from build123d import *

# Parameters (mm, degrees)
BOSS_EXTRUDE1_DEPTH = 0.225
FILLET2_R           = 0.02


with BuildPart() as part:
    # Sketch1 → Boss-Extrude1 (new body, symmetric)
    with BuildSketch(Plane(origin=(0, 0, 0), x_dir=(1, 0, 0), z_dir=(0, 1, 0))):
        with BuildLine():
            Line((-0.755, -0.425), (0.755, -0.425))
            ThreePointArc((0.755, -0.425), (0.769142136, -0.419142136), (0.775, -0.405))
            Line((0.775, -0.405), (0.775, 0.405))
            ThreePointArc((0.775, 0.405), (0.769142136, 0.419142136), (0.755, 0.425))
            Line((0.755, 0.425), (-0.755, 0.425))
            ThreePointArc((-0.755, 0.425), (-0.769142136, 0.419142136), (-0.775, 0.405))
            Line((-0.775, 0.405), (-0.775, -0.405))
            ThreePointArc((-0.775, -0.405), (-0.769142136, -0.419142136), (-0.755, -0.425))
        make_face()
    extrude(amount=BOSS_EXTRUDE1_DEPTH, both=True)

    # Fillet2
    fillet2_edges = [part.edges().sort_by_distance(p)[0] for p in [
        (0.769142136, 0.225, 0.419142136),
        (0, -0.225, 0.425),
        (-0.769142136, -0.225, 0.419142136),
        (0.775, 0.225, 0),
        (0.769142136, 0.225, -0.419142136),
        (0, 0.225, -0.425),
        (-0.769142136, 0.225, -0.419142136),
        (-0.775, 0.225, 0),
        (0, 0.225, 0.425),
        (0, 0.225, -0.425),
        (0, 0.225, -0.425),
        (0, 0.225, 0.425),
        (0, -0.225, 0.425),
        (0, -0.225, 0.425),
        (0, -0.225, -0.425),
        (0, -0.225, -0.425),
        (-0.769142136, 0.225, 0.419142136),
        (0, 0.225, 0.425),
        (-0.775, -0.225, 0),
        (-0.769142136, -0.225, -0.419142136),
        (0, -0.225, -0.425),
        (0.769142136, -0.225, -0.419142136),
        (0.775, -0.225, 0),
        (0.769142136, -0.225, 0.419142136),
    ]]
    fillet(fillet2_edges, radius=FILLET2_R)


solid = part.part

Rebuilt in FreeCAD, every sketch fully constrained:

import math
import FreeCAD as App
import Part
import Sketcher

doc = App.newDocument("Part")
body = doc.addObject("PartDesign::Body", "Body")

# Sketch on XZ plane
sketch1 = body.newObject("Sketcher::SketchObject", "Sketch")
sketch1.AttachmentSupport = (doc.getObject("XZ_Plane"), [""])
sketch1.MapMode = "FlatFace"
sketch1.addGeometry([
    Part.LineSegment(App.Vector(-0.755, 0.425, 0), App.Vector(0.755, 0.425, 0)),  # 0
    Part.ArcOfCircle(Part.Circle(App.Vector(0.755, 0.405, 0), App.Vector(0, 0, 1), 0.02), math.radians(0), math.radians(90)),  # 1
    Part.LineSegment(App.Vector(0.775, 0.405, 0), App.Vector(0.775, -0.405, 0)),  # 2
    Part.ArcOfCircle(Part.Circle(App.Vector(0.755, -0.405, 0), App.Vector(0, 0, 1), 0.02), math.radians(-90), math.radians(0)),  # 3
    Part.LineSegment(App.Vector(0.755, -0.425, 0), App.Vector(-0.755, -0.425, 0)),  # 4
    Part.ArcOfCircle(Part.Circle(App.Vector(-0.755, -0.405, 0), App.Vector(0, 0, 1), 0.02), math.radians(180), math.radians(270)),  # 5
    Part.LineSegment(App.Vector(-0.775, -0.405, 0), App.Vector(-0.775, 0.405, 0)),  # 6
    Part.ArcOfCircle(Part.Circle(App.Vector(-0.755, 0.405, 0), App.Vector(0, 0, 1), 0.02), math.radians(90), math.radians(180)),  # 7
], False)
sketch1.addConstraint([
    Sketcher.Constraint("Tangent", 0, 2, 1, 2),
    Sketcher.Constraint("Tangent", 1, 1, 2, 1),
    Sketcher.Constraint("Tangent", 2, 2, 3, 2),
    Sketcher.Constraint("Tangent", 3, 1, 4, 1),
    Sketcher.Constraint("Tangent", 4, 2, 5, 2),
    Sketcher.Constraint("Tangent", 5, 1, 6, 1),
    Sketcher.Constraint("Tangent", 6, 2, 7, 2),
    Sketcher.Constraint("Tangent", 7, 1, 0, 1),
    Sketcher.Constraint("Horizontal", 0),
    Sketcher.Constraint("Vertical", 2),
    Sketcher.Constraint("Horizontal", 4),
    Sketcher.Constraint("Vertical", 6),
    Sketcher.Constraint("Equal", 1, 3),
    Sketcher.Constraint("Equal", 3, 5),
    Sketcher.Constraint("Equal", 5, 7),
    Sketcher.Constraint("Symmetric", 1, 3, 5, 3, -1, 1),
    Sketcher.Constraint("Radius", 1, 0.02),
    Sketcher.Constraint("DistanceX", 0, 1, 0, 2, 1.51),
    Sketcher.Constraint("DistanceY", 2, 2, 2, 1, 0.81),
])
pad1 = body.newObject("PartDesign::Pad", "Pad")
pad1.Profile = sketch1
pad1.Length = 0.45
pad1.Midplane = True
doc.recompute()

fillet = body.newObject("PartDesign::Fillet", "Fillet")
fillet.Base = (pad1, ["Edge1"])
fillet.UseAllEdges = True
fillet.Radius = 0.02

doc.recompute()
